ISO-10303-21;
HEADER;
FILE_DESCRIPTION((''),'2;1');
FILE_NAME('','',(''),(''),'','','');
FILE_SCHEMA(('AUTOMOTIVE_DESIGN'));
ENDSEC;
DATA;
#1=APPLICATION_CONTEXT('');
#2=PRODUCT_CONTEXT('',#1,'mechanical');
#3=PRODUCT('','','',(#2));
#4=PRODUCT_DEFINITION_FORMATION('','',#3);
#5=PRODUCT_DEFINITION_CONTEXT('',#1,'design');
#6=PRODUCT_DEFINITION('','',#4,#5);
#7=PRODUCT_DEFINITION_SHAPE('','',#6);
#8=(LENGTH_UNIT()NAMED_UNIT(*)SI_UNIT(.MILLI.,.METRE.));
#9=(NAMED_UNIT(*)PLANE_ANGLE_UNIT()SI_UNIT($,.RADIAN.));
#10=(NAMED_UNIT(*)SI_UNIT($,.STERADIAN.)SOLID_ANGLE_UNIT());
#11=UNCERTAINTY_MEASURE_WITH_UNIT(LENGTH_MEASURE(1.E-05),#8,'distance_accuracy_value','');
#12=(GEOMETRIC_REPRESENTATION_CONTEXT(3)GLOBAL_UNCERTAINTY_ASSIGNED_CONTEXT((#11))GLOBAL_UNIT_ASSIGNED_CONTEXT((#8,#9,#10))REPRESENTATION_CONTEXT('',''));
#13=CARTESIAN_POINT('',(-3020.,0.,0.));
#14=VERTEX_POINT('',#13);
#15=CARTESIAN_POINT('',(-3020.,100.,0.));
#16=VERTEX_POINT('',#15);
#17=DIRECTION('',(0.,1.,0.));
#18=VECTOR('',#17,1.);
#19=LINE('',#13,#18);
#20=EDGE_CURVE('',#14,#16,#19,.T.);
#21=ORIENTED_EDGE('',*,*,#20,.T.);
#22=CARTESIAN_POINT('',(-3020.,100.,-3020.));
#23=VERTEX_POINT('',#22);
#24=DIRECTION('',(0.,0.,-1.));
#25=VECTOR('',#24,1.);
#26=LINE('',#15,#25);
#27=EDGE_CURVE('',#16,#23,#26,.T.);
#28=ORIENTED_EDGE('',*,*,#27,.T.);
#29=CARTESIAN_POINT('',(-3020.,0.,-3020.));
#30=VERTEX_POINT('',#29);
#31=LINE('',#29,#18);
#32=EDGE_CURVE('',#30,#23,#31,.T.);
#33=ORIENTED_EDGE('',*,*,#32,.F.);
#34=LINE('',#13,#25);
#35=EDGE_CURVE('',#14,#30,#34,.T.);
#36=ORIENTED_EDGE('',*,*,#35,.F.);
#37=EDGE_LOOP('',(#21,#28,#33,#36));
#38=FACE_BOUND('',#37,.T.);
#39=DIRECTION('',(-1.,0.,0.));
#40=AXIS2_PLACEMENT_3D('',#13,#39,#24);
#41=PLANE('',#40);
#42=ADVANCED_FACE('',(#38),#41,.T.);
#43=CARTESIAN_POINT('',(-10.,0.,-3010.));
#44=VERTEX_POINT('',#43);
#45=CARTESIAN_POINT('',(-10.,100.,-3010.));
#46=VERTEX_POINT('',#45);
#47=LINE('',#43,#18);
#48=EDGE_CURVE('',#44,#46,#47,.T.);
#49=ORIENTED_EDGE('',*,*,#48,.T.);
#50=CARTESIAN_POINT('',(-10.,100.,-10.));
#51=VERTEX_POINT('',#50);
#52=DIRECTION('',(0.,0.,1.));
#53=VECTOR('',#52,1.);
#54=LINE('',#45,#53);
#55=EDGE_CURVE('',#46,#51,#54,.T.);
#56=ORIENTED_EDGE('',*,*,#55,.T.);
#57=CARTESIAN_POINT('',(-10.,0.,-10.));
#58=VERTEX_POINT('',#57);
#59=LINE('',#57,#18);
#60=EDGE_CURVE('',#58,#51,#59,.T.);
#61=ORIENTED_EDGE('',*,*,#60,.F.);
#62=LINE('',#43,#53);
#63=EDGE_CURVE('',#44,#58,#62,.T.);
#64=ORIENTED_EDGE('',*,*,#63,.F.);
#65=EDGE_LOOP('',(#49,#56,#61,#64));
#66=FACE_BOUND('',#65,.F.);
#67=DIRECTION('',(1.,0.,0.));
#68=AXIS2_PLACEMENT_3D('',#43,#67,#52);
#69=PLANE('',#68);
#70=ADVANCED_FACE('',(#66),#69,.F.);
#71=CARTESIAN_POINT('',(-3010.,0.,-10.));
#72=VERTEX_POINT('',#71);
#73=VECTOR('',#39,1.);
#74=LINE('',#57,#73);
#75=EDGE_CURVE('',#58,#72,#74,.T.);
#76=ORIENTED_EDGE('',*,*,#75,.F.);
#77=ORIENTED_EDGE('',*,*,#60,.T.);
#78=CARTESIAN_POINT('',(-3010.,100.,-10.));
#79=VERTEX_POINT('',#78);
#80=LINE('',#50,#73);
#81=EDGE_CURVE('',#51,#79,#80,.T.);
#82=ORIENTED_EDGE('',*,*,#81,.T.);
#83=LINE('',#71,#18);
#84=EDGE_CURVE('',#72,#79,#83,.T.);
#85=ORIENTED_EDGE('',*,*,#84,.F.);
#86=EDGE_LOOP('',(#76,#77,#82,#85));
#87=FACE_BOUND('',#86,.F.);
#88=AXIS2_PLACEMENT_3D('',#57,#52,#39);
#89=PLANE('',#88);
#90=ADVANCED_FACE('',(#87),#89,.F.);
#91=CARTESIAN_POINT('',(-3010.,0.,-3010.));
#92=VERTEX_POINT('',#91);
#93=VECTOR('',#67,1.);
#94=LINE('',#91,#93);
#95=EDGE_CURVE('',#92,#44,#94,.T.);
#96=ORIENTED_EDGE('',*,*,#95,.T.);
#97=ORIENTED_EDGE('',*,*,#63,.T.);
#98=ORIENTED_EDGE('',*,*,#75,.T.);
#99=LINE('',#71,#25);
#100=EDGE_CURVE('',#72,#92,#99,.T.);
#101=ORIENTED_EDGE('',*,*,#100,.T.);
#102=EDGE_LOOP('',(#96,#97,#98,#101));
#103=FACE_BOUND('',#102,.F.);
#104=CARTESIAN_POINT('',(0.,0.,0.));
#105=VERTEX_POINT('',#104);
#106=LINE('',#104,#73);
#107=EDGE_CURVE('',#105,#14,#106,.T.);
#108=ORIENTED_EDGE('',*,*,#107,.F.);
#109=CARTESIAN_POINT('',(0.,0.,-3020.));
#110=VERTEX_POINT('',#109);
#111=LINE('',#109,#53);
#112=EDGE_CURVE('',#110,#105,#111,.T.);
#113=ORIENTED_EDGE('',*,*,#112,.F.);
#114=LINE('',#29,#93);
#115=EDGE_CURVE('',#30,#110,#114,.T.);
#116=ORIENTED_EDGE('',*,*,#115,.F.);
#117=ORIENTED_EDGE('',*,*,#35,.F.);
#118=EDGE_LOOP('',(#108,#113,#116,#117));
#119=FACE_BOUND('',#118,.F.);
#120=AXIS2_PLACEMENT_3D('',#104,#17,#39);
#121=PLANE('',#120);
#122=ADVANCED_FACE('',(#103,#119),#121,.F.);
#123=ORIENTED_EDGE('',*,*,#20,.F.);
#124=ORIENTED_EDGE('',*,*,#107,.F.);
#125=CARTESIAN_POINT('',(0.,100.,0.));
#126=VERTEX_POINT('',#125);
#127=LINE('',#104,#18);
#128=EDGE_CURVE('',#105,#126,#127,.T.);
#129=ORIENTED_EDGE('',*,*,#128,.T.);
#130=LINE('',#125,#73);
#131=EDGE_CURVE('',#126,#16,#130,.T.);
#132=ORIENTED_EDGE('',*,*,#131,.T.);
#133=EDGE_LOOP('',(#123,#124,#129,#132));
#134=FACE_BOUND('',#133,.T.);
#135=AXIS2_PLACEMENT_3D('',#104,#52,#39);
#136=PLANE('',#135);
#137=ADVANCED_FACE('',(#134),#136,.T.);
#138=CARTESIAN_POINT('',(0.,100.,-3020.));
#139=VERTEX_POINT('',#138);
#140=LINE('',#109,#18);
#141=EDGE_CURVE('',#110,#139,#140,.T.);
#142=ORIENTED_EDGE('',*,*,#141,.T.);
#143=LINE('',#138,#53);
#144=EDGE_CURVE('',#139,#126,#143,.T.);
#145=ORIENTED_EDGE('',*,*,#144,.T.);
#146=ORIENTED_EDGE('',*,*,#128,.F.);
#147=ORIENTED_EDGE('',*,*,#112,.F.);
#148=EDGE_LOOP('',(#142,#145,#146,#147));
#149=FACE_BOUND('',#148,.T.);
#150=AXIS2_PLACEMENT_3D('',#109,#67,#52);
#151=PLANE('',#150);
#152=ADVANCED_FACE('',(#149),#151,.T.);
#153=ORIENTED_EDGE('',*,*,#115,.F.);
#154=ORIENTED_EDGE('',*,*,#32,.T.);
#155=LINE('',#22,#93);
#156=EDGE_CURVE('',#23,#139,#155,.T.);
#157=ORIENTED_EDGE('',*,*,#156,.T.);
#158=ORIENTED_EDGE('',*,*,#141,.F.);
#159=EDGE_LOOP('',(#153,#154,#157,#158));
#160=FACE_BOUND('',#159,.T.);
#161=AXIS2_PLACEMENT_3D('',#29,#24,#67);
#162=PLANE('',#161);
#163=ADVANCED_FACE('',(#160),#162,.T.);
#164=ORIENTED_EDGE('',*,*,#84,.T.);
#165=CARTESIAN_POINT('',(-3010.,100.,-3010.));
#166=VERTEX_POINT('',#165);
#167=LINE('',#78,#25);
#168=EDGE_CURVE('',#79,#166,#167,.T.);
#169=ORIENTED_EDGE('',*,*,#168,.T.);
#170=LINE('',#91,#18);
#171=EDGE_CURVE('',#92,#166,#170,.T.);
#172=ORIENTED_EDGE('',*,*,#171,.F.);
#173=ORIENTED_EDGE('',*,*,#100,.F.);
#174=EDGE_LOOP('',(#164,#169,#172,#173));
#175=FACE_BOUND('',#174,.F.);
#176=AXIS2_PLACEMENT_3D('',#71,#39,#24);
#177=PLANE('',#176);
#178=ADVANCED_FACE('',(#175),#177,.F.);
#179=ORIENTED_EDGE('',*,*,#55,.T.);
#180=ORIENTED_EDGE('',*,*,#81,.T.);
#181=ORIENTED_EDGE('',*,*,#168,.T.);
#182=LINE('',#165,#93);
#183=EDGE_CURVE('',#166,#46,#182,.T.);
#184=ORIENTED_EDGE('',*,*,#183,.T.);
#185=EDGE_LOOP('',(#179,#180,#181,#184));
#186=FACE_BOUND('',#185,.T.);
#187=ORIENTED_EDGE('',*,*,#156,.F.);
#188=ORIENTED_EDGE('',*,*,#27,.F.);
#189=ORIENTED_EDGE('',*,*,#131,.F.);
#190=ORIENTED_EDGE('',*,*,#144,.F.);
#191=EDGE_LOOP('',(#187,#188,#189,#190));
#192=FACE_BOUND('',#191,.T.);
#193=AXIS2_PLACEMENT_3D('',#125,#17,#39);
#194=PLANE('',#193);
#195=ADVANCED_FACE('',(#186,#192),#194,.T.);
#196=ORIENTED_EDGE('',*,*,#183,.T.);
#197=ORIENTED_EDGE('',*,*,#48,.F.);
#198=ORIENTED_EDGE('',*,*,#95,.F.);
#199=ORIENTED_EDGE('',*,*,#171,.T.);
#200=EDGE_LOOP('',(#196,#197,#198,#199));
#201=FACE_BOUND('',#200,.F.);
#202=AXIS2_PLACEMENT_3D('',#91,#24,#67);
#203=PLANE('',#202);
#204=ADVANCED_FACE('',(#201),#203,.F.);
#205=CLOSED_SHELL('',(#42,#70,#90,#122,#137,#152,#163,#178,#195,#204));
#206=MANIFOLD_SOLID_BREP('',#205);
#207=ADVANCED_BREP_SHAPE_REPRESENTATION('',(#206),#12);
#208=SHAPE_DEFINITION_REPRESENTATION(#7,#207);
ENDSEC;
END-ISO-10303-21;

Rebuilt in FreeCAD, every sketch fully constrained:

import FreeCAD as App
import Part
import Sketcher

doc = App.newDocument("Part")
body = doc.addObject("PartDesign::Body", "Body")

sketch1 = body.newObject("Sketcher::SketchObject", "Sketch")
sketch1.AttachmentSupport = (doc.getObject("XZ_Plane"), [""])
sketch1.MapMode = "FlatFace"
sketch1.addGeometry([
    Part.LineSegment(App.Vector(-3020, 0, 0), App.Vector(0, 0, 0)),
    Part.LineSegment(App.Vector(0, 0, 0), App.Vector(0, -3020, 0)),
    Part.LineSegment(App.Vector(0, -3020, 0), App.Vector(-3020, -3020, 0)),
    Part.LineSegment(App.Vector(-3020, -3020, 0), App.Vector(-3020, 0, 0)),
    Part.LineSegment(App.Vector(-10, -3010, 0), App.Vector(-10, -10, 0)),
    Part.LineSegment(App.Vector(-10, -10, 0), App.Vector(-3010, -10, 0)),
    Part.LineSegment(App.Vector(-3010, -10, 0), App.Vector(-3010, -3010, 0)),
    Part.LineSegment(App.Vector(-3010, -3010, 0), App.Vector(-10, -3010, 0)),
], False)
sketch1.addConstraint([
    Sketcher.Constraint("Coincident", 0, 2, 1, 1),
    Sketcher.Constraint("Coincident", 1, 2, 2, 1),
    Sketcher.Constraint("Coincident", 2, 2, 3, 1),
    Sketcher.Constraint("Coincident", 3, 2, 0, 1),
    Sketcher.Constraint("Coincident", 4, 2, 5, 1),
    Sketcher.Constraint("Coincident", 5, 2, 6, 1),
    Sketcher.Constraint("Coincident", 6, 2, 7, 1),
    Sketcher.Constraint("Coincident", 7, 2, 4, 1),
    Sketcher.Constraint("Horizontal", 0),
    Sketcher.Constraint("Vertical", 1),
    Sketcher.Constraint("Horizontal", 2),
    Sketcher.Constraint("Vertical", 3),
    Sketcher.Constraint("Vertical", 4),
    Sketcher.Constraint("Horizontal", 5),
    Sketcher.Constraint("Vertical", 6),
    Sketcher.Constraint("Horizontal", 7),
    Sketcher.Constraint("Coincident", 0, 2, -1, 1),
    Sketcher.Constraint("Equal", 2, 1),
    Sketcher.Constraint("Equal", 7, 4),
    Sketcher.Constraint("DistanceX", 0, 1, 0, 2, 3020.0),
    Sketcher.Constraint("DistanceX", 5, 2, 5, 1, 3000.0),
    Sketcher.Constraint("DistanceX", 4, 2, -1, 1, 10.0),
    Sketcher.Constraint("DistanceY", 4, 2, -1, 1, 10.0),
])
pad1 = body.newObject("PartDesign::Pad", "Pad")
pad1.Profile = sketch1
pad1.Length = 100
pad1.Reversed = True

doc.recompute()
